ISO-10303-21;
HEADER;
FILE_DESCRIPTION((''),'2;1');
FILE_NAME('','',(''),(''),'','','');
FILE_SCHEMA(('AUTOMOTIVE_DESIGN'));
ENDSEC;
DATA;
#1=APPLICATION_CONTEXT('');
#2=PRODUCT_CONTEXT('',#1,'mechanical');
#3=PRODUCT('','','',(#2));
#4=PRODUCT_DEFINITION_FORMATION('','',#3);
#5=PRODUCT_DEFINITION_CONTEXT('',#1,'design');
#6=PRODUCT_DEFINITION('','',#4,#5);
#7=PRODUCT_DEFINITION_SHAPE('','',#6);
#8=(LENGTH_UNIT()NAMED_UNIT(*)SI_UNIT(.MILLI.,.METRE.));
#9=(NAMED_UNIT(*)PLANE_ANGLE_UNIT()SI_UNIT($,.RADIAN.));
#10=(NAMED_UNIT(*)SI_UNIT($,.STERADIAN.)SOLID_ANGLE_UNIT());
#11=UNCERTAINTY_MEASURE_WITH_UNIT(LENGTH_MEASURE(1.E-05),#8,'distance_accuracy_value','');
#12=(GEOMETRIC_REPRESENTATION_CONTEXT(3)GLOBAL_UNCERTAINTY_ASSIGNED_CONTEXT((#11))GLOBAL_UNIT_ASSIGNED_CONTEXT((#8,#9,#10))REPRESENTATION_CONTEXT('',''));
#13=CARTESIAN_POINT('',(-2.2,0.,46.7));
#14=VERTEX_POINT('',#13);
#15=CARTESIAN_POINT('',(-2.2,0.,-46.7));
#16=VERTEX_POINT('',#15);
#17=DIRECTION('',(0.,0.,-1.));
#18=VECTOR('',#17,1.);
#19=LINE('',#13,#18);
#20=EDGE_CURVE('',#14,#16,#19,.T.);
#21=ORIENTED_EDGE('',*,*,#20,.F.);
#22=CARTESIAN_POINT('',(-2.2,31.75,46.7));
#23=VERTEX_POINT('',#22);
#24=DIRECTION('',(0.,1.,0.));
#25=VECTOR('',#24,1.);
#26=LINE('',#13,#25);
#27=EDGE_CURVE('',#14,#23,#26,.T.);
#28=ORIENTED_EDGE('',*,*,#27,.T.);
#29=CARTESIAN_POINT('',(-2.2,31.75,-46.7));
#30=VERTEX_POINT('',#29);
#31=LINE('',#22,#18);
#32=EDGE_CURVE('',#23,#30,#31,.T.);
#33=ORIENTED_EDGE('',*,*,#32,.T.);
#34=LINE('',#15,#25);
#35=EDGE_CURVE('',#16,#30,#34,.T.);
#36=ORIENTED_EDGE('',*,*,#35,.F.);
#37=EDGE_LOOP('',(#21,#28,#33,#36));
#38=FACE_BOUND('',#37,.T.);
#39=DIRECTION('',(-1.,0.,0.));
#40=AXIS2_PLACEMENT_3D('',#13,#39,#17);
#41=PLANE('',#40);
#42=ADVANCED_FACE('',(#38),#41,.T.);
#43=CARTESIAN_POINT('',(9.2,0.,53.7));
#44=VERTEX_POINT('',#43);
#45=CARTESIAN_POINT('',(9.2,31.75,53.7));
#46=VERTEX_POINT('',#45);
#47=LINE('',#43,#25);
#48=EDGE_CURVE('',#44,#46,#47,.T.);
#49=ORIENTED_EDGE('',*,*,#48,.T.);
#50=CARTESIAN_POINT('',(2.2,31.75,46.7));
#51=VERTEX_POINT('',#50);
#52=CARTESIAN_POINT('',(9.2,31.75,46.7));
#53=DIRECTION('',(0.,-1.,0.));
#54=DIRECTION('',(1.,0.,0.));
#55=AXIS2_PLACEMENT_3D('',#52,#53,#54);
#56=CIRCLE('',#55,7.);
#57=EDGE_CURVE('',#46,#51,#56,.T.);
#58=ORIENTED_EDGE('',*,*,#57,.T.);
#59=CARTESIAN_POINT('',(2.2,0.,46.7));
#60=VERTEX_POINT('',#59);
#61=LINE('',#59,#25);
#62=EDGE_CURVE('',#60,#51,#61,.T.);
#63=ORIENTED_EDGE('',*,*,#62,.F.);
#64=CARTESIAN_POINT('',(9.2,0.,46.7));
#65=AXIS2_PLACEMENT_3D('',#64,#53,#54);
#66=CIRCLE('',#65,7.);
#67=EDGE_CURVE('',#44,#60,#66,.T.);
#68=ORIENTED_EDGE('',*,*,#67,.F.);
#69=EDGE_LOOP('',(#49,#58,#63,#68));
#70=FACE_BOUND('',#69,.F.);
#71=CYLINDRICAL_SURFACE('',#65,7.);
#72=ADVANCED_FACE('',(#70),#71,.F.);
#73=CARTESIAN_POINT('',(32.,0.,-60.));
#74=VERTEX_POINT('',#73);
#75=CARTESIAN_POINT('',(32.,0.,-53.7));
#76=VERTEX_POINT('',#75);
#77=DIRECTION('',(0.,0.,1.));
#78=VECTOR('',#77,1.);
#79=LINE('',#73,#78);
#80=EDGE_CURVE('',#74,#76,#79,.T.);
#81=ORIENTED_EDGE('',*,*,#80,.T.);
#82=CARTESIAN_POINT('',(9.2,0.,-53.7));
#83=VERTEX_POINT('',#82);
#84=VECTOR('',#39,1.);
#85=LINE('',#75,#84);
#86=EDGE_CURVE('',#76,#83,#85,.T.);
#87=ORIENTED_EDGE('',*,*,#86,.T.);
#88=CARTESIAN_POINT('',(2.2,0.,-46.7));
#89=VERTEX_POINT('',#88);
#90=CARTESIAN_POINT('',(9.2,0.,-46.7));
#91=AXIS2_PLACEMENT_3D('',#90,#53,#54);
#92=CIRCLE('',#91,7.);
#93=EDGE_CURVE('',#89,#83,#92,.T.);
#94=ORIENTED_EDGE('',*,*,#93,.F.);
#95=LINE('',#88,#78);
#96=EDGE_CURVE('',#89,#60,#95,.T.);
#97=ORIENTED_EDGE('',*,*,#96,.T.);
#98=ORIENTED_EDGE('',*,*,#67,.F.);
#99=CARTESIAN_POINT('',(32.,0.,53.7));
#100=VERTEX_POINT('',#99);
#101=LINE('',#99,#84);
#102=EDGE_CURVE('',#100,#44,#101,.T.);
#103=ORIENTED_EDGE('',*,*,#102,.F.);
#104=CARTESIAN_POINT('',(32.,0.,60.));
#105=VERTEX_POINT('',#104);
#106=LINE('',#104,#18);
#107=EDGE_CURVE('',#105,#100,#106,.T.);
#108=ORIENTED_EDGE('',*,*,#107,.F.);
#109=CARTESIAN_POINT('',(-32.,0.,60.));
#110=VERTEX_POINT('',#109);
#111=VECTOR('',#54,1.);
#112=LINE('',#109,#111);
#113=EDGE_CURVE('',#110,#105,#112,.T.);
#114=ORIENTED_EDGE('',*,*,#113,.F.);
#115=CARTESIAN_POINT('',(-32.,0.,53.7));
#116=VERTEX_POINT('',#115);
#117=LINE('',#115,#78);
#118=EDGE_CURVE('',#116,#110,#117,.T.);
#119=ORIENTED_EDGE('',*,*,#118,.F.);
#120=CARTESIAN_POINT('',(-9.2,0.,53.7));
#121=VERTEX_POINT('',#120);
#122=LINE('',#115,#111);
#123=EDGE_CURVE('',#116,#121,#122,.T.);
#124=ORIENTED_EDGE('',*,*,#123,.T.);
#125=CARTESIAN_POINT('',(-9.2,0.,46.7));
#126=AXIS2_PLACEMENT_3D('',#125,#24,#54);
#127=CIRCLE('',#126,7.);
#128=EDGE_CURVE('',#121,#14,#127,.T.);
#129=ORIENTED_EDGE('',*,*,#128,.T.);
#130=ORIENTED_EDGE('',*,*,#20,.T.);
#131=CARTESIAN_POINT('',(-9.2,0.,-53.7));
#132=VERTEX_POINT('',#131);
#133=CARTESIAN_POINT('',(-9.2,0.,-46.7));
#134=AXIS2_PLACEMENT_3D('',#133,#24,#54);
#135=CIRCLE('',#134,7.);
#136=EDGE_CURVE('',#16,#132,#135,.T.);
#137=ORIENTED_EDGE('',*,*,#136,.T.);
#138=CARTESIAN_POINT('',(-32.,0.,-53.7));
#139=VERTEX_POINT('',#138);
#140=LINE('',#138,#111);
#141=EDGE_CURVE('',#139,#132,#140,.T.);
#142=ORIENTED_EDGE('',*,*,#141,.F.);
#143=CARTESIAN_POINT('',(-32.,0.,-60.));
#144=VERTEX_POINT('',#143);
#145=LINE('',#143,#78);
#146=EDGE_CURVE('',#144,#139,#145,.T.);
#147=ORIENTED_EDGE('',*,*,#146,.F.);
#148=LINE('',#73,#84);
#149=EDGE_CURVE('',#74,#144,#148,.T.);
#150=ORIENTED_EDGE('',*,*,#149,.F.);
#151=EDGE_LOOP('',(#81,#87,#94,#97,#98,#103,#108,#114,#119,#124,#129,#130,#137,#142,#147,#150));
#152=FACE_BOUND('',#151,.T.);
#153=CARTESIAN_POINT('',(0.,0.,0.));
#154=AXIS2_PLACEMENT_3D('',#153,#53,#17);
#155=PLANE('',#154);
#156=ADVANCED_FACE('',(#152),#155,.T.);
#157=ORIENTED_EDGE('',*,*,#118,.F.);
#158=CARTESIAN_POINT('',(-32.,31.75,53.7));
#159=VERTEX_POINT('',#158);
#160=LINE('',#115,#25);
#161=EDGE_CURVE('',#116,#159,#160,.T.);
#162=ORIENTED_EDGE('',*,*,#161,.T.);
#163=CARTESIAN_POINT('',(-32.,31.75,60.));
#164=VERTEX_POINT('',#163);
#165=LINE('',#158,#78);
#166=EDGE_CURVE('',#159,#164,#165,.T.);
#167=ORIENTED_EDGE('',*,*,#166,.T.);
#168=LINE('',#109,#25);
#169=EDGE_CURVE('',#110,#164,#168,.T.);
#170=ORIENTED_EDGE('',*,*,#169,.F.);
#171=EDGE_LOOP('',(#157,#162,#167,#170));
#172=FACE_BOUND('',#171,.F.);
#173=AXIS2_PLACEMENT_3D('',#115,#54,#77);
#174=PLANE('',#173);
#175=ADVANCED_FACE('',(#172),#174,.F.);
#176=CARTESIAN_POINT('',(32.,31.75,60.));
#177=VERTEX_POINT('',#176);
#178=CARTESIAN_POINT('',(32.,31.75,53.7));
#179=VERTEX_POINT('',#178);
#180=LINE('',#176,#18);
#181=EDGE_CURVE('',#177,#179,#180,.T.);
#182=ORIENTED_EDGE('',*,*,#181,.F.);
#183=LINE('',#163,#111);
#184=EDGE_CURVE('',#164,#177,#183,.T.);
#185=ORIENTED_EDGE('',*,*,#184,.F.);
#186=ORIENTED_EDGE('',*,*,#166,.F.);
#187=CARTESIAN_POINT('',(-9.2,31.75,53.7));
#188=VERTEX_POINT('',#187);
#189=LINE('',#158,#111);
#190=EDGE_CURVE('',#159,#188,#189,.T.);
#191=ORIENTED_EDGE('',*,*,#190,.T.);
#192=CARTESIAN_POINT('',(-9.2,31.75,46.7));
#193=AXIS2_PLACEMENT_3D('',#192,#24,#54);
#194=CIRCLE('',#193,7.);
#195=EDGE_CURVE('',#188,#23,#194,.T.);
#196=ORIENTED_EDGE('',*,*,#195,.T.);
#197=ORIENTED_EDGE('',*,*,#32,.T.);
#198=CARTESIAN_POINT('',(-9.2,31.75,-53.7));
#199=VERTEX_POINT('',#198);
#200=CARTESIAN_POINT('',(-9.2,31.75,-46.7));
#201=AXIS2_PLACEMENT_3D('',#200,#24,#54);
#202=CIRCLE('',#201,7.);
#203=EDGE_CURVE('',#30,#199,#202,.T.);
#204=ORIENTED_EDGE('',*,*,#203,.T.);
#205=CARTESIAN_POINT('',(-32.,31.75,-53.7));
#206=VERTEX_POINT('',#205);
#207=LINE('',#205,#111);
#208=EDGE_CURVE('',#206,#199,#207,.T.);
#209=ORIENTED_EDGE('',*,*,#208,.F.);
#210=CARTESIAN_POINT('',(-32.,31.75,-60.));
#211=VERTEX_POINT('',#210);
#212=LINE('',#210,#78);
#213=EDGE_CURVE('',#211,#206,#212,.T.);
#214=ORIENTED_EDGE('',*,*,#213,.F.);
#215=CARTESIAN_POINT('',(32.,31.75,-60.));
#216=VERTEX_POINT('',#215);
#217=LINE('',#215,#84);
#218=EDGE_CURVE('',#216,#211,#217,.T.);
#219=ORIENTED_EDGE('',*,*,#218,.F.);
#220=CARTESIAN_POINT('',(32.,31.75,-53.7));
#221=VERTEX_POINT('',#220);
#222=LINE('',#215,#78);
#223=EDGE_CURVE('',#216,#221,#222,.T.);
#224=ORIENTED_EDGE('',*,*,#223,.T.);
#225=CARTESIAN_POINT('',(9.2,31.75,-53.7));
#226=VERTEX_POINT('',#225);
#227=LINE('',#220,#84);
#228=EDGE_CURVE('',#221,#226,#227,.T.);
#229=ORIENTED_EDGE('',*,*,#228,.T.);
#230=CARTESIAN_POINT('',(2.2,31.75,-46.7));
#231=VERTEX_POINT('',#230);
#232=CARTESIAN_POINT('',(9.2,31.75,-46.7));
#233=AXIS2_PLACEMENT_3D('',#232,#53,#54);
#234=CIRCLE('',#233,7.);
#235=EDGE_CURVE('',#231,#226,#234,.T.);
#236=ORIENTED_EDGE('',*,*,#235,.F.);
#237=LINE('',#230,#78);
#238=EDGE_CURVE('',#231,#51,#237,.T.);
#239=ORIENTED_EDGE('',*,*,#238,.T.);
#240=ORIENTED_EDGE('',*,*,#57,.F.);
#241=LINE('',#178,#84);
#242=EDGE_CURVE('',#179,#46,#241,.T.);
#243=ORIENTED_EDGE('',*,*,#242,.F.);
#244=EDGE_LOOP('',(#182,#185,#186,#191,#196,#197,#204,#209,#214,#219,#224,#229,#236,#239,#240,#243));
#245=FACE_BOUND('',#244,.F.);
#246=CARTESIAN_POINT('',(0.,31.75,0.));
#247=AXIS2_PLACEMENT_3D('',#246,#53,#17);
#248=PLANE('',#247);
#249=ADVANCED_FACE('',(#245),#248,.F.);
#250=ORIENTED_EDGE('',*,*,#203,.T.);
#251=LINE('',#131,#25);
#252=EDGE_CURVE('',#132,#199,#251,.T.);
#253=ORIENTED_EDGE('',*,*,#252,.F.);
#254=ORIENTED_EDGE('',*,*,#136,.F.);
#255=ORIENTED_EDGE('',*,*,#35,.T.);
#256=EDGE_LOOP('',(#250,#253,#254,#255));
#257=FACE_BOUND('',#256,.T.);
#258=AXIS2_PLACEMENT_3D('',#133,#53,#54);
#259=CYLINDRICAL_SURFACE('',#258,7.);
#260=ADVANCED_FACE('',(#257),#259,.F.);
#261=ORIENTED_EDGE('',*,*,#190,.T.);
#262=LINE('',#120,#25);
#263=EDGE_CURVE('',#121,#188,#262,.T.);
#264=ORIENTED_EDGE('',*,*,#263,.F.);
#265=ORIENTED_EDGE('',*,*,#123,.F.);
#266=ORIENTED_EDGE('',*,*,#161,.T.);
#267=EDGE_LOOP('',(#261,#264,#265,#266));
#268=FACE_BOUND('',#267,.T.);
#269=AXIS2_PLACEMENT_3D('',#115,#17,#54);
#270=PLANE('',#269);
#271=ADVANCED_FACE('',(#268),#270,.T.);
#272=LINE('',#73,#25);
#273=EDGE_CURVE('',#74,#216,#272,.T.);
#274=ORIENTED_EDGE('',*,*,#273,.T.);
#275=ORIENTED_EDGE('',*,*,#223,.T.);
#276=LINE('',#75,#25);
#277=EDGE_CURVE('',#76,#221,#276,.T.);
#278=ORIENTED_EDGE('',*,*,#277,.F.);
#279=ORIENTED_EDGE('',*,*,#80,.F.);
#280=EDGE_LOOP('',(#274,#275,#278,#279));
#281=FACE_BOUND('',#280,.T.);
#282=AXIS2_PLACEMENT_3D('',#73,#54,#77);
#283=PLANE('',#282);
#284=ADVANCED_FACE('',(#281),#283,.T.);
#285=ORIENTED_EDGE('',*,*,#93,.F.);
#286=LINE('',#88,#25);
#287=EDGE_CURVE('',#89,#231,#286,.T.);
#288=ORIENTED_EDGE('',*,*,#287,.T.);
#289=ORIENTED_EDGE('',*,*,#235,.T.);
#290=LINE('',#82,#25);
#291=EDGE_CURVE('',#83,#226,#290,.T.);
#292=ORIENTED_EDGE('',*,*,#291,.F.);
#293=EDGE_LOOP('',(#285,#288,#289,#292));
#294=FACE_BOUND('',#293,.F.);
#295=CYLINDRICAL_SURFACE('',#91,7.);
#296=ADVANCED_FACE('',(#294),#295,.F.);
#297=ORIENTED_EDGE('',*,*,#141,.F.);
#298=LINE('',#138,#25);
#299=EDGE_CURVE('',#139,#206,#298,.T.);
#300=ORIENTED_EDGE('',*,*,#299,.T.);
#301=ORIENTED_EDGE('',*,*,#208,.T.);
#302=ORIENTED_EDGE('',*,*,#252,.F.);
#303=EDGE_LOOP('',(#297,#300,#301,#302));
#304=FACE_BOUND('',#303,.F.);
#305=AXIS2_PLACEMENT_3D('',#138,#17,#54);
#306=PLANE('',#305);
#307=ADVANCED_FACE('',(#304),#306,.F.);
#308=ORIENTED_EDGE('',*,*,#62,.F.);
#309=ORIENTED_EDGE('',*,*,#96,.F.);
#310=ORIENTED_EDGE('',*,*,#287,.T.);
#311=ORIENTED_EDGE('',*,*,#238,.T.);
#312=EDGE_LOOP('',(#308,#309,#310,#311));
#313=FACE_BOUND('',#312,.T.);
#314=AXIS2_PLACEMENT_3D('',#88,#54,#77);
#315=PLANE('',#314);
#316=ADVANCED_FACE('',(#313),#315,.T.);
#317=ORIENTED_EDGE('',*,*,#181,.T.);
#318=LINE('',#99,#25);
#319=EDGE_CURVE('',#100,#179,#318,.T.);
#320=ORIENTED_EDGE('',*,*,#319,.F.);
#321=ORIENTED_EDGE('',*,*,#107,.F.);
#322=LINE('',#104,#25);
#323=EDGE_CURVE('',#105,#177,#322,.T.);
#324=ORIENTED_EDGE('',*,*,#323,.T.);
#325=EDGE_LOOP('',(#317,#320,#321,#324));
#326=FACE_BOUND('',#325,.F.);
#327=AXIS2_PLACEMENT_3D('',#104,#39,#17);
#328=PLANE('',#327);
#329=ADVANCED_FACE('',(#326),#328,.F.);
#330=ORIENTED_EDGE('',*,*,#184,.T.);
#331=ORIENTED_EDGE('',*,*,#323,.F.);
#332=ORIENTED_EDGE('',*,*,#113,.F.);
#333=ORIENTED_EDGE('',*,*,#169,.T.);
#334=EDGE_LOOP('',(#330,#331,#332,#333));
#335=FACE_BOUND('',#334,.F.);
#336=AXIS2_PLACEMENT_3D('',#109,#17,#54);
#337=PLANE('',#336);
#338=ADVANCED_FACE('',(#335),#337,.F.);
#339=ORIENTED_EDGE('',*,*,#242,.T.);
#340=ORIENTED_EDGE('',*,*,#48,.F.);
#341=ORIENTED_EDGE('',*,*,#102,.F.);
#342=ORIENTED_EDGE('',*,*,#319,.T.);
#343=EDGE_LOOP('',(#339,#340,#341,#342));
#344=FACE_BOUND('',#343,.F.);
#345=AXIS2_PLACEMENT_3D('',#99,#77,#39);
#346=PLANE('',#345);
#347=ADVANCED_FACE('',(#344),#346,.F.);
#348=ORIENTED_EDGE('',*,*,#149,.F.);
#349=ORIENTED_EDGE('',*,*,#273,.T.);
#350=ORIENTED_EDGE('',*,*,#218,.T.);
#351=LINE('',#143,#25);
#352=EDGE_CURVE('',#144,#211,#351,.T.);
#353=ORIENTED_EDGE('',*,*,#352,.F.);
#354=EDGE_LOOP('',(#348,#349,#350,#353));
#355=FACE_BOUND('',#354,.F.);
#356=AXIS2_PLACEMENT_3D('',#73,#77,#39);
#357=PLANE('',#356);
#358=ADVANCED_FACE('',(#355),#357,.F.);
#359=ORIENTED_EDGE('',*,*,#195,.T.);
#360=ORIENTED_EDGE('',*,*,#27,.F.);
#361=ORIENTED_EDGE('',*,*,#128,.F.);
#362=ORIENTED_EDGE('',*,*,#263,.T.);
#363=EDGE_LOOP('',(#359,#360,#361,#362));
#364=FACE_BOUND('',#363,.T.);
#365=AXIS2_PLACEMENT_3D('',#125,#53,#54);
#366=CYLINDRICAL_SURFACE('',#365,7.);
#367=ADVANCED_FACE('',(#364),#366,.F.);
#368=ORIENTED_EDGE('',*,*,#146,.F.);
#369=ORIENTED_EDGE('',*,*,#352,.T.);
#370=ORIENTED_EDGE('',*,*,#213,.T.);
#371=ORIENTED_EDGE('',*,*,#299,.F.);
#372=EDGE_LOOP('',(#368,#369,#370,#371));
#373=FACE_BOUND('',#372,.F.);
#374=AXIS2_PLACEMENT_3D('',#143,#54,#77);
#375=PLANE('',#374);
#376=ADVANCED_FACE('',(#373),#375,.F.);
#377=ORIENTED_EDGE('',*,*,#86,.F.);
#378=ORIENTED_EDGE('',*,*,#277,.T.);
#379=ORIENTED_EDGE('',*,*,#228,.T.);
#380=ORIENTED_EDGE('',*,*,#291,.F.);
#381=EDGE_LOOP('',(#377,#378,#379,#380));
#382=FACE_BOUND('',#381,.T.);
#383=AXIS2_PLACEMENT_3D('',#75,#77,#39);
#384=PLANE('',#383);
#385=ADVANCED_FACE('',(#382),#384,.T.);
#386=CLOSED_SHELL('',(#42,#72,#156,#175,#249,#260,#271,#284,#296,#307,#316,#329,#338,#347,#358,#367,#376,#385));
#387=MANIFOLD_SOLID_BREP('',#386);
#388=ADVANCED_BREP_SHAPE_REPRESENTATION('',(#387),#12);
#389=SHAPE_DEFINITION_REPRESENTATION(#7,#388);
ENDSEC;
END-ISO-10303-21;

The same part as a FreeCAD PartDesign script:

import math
import FreeCAD as App
import Part
import Sketcher

V = App.Vector
Q = App.Units.Quantity

doc = App.newDocument("Part")
body = doc.addObject("PartDesign::Body", "Body")

# Sketch on XZ plane
sketch1 = body.newObject("Sketcher::SketchObject", "Sketch")
sketch1.AttachmentSupport = (doc.getObject("XZ_Plane"), [""])
sketch1.MapMode = "FlatFace"
sketch1.addGeometry(Part.ArcOfCircle(Part.Circle(V(-9, 47, 0), V(0, 0, 1), 7), math.radians(0), math.radians(90)), False)
sketch1.addGeometry(Part.LineSegment(V(-2, 47, 0), V(-2, -47, 0)), False)
sketch1.addGeometry(Part.ArcOfCircle(Part.Circle(V(-9, -47, 0), V(0, 0, 1), 7), math.radians(-90), math.radians(0)), False)
sketch1.addGeometry(Part.LineSegment(V(-9, -54, 0), V(-32, -54, 0)), False)
sketch1.addGeometry(Part.LineSegment(V(-32, -54, 0), V(-32, -60, 0)), False)
sketch1.addGeometry(Part.LineSegment(V(-32, -60, 0), V(32, -60, 0)), False)
sketch1.addGeometry(Part.LineSegment(V(32, -60, 0), V(32, -54, 0)), False)
sketch1.addGeometry(Part.LineSegment(V(32, -54, 0), V(9, -54, 0)), False)
sketch1.addGeometry(Part.ArcOfCircle(Part.Circle(V(9, -47, 0), V(0, 0, 1), 7), math.radians(180), math.radians(270)), False)
sketch1.addGeometry(Part.LineSegment(V(2, -47, 0), V(2, 47, 0)), False)
sketch1.addGeometry(Part.ArcOfCircle(Part.Circle(V(9, 47, 0), V(0, 0, 1), 7), math.radians(90), math.radians(180)), False)
sketch1.addGeometry(Part.LineSegment(V(9, 54, 0), V(32, 54, 0)), False)
sketch1.addGeometry(Part.LineSegment(V(32, 54, 0), V(32, 60, 0)), False)
sketch1.addGeometry(Part.LineSegment(V(32, 60, 0), V(-32, 60, 0)), False)
sketch1.addGeometry(Part.LineSegment(V(-32, 60, 0), V(-32, 54, 0)), False)
sketch1.addGeometry(Part.LineSegment(V(-32, 54, 0), V(-9, 54, 0)), False)
sketch1.addConstraint(Sketcher.Constraint("Tangent", 0, 1, 1, 1))
sketch1.addConstraint(Sketcher.Constraint("Tangent", 1, 2, 2, 2))
sketch1.addConstraint(Sketcher.Constraint("Tangent", 2, 1, 3, 1))
sketch1.addConstraint(Sketcher.Constraint("Coincident", 3, 2, 4, 1))
sketch1.addConstraint(Sketcher.Constraint("Coincident", 4, 2, 5, 1))
sketch1.addConstraint(Sketcher.Constraint("Coincident", 5, 2, 6, 1))
sketch1.addConstraint(Sketcher.Constraint("Coincident", 6, 2, 7, 1))
sketch1.addConstraint(Sketcher.Constraint("Tangent", 7, 2, 8, 2))
sketch1.addConstraint(Sketcher.Constraint("Tangent", 8, 1, 9, 1))
sketch1.addConstraint(Sketcher.Constraint("Tangent", 9, 2, 10, 2))
sketch1.addConstraint(Sketcher.Constraint("Tangent", 10, 1, 11, 1))
sketch1.addConstraint(Sketcher.Constraint("Coincident", 11, 2, 12, 1))
sketch1.addConstraint(Sketcher.Constraint("Coincident", 12, 2, 13, 1))
sketch1.addConstraint(Sketcher.Constraint("Coincident", 13, 2, 14, 1))
sketch1.addConstraint(Sketcher.Constraint("Coincident", 14, 2, 15, 1))
sketch1.addConstraint(Sketcher.Constraint("Tangent", 15, 2, 0, 2))
sketch1.addConstraint(Sketcher.Constraint("Vertical", 1))
sketch1.addConstraint(Sketcher.Constraint("Horizontal", 3))
sketch1.addConstraint(Sketcher.Constraint("Vertical", 4))
sketch1.addConstraint(Sketcher.Constraint("Horizontal", 5))
sketch1.addConstraint(Sketcher.Constraint("Vertical", 6))
sketch1.addConstraint(Sketcher.Constraint("Horizontal", 7))
sketch1.addConstraint(Sketcher.Constraint("Vertical", 9))
sketch1.addConstraint(Sketcher.Constraint("Horizontal", 11))
sketch1.addConstraint(Sketcher.Constraint("Vertical", 12))
sketch1.addConstraint(Sketcher.Constraint("Horizontal", 13))
sketch1.addConstraint(Sketcher.Constraint("Vertical", 14))
sketch1.addConstraint(Sketcher.Constraint("Horizontal", 15))
sketch1.addConstraint(Sketcher.Constraint("Equal", 0, 2))
sketch1.addConstraint(Sketcher.Constraint("Equal", 2, 8))
sketch1.addConstraint(Sketcher.Constraint("Equal", 8, 10))
sketch1.addConstraint(Sketcher.Constraint("Symmetric", 0, 3, 8, 3, -1, 1))
sketch1.addConstraint(Sketcher.Constraint("Symmetric", 3, 2, 11, 2, -1, 1))
sketch1.addConstraint(Sketcher.Constraint("Symmetric", 5, 2, 13, 2, -1, 1))
sketch1.addConstraint(Sketcher.Constraint("Symmetric", 3, 2, 6, 2, -2))
sketch1.addConstraint(Sketcher.Constraint("DistanceX", 3, 2, -1, 1, Q("32 mm")))
sketch1.addConstraint(Sketcher.Constraint("Radius", 0, Q("7 mm")))
sketch1.addConstraint(Sketcher.Constraint("DistanceX", 3, 2, 3, 1, Q("22.8 mm")))
sketch1.addConstraint(Sketcher.Constraint("DistanceY", 1, 2, 1, 1, Q("93.4 mm")))
sketch1.addConstraint(Sketcher.Constraint("DistanceY", 4, 2, 4, 1, Q("6.3 mm")))
pad1 = body.newObject("PartDesign::Pad", "Pad")
pad1.Profile = sketch1
pad1.Length = 31.75
pad1.Reversed = True

doc.recompute()
